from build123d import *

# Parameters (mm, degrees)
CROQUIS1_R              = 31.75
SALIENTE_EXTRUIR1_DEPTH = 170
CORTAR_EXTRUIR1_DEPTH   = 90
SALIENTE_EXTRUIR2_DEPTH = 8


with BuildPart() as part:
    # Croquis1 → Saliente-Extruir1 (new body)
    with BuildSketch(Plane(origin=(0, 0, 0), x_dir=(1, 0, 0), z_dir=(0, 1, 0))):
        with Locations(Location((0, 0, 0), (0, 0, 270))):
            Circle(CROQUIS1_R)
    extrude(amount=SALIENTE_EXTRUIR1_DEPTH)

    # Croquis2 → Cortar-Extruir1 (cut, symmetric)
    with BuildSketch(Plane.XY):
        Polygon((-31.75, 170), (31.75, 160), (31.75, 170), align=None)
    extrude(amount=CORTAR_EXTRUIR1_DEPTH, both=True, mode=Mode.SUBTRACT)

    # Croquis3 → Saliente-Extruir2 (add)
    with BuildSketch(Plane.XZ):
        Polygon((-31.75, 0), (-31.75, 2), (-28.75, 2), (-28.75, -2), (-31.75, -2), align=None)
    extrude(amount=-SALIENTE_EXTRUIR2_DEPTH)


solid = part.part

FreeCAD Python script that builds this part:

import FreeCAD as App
import Part
import Sketcher


def add_polygon(sketch, points):
    """Adds a closed chain of lines whose ends are joined by coincident constraints."""
    first, n = sketch.GeometryCount, len(points)
    for a, b in zip(points, points[1:] + points[:1]):
        sketch.addGeometry(Part.LineSegment(App.Vector(*a, 0), App.Vector(*b, 0)), False)
    for i in range(n):
        sketch.addConstraint(Sketcher.Constraint("Coincident", first + i, 2, first + (i + 1) % n, 1))

doc = App.newDocument("Part")
body = doc.addObject("PartDesign::Body", "Body")

sketch1 = doc.addObject("Sketcher::SketchObject", "Sketch")
body.addObject(sketch1)
sketch1.AttachmentSupport = (doc.XZ_Plane, [""])
sketch1.MapMode = "FlatFace"
sketch1.addGeometry(Part.Circle(App.Vector(0, 0, 0), App.Vector(0, 0, 1), 32), False)
sketch1.addConstraint([
    Sketcher.Constraint("Coincident", 0, 3, -1, 1),
    Sketcher.Constraint("Diameter", 0, 63.5),
])
pad1 = doc.addObject("PartDesign::Pad", "Pad")
body.addObject(pad1)
pad1.Profile = sketch1
pad1.Length = 170
pad1.Reversed = True

sketch2 = doc.addObject("Sketcher::SketchObject", "Sketch001")
body.addObject(sketch2)
sketch2.AttachmentSupport = (doc.XY_Plane, [""])
sketch2.MapMode = "FlatFace"
add_polygon(sketch2, [(-32, 170), (32, 160), (32, 170)])
sketch2.addConstraint([
    Sketcher.Constraint("Vertical", 1),
    Sketcher.Constraint("Horizontal", 2),
    Sketcher.Constraint("DistanceY", 1, 1, 1, 2, 10.0),
    Sketcher.Constraint("DistanceX", 2, 2, 2, 1, 63.5),
    Sketcher.Constraint("DistanceY", -1, 1, 0, 2, 160.0),
    Sketcher.Constraint("DistanceX", -1, 1, 0, 2, 31.75),
])
pocket1 = doc.addObject("PartDesign::Pocket", "Pocket")
body.addObject(pocket1)
pocket1.Profile = sketch2
pocket1.Length = 180
pocket1.Midplane = True

sketch3 = doc.addObject("Sketcher::SketchObject", "Sketch002")
body.addObject(sketch3)
sketch3.AttachmentSupport = (doc.XZ_Plane, [""])
sketch3.MapMode = "FlatFace"
add_polygon(sketch3, [(-31.8, 2), (-31.8, -2), (-28.8, -2), (-28.8, 2)])
sketch3.addConstraint([
    Sketcher.Constraint("Vertical", 0),
    Sketcher.Constraint("Horizontal", 1),
    Sketcher.Constraint("Vertical", 2),
    Sketcher.Constraint("Horizontal", 3),
    Sketcher.Constraint("DistanceX", 1, 1, 1, 2, 3.0),
    Sketcher.Constraint("DistanceY", 0, 2, 0, 1, 4.0),
    Sketcher.Constraint("DistanceY", 0, 2, -1, 1, 2.0),
    Sketcher.Constraint("DistanceX", 0, 2, -1, 1, 31.75),
])
pad2 = doc.addObject("PartDesign::Pad", "Pad001")
body.addObject(pad2)
pad2.Profile = sketch3
pad2.Length = 8
pad2.Reversed = True

doc.recompute()
